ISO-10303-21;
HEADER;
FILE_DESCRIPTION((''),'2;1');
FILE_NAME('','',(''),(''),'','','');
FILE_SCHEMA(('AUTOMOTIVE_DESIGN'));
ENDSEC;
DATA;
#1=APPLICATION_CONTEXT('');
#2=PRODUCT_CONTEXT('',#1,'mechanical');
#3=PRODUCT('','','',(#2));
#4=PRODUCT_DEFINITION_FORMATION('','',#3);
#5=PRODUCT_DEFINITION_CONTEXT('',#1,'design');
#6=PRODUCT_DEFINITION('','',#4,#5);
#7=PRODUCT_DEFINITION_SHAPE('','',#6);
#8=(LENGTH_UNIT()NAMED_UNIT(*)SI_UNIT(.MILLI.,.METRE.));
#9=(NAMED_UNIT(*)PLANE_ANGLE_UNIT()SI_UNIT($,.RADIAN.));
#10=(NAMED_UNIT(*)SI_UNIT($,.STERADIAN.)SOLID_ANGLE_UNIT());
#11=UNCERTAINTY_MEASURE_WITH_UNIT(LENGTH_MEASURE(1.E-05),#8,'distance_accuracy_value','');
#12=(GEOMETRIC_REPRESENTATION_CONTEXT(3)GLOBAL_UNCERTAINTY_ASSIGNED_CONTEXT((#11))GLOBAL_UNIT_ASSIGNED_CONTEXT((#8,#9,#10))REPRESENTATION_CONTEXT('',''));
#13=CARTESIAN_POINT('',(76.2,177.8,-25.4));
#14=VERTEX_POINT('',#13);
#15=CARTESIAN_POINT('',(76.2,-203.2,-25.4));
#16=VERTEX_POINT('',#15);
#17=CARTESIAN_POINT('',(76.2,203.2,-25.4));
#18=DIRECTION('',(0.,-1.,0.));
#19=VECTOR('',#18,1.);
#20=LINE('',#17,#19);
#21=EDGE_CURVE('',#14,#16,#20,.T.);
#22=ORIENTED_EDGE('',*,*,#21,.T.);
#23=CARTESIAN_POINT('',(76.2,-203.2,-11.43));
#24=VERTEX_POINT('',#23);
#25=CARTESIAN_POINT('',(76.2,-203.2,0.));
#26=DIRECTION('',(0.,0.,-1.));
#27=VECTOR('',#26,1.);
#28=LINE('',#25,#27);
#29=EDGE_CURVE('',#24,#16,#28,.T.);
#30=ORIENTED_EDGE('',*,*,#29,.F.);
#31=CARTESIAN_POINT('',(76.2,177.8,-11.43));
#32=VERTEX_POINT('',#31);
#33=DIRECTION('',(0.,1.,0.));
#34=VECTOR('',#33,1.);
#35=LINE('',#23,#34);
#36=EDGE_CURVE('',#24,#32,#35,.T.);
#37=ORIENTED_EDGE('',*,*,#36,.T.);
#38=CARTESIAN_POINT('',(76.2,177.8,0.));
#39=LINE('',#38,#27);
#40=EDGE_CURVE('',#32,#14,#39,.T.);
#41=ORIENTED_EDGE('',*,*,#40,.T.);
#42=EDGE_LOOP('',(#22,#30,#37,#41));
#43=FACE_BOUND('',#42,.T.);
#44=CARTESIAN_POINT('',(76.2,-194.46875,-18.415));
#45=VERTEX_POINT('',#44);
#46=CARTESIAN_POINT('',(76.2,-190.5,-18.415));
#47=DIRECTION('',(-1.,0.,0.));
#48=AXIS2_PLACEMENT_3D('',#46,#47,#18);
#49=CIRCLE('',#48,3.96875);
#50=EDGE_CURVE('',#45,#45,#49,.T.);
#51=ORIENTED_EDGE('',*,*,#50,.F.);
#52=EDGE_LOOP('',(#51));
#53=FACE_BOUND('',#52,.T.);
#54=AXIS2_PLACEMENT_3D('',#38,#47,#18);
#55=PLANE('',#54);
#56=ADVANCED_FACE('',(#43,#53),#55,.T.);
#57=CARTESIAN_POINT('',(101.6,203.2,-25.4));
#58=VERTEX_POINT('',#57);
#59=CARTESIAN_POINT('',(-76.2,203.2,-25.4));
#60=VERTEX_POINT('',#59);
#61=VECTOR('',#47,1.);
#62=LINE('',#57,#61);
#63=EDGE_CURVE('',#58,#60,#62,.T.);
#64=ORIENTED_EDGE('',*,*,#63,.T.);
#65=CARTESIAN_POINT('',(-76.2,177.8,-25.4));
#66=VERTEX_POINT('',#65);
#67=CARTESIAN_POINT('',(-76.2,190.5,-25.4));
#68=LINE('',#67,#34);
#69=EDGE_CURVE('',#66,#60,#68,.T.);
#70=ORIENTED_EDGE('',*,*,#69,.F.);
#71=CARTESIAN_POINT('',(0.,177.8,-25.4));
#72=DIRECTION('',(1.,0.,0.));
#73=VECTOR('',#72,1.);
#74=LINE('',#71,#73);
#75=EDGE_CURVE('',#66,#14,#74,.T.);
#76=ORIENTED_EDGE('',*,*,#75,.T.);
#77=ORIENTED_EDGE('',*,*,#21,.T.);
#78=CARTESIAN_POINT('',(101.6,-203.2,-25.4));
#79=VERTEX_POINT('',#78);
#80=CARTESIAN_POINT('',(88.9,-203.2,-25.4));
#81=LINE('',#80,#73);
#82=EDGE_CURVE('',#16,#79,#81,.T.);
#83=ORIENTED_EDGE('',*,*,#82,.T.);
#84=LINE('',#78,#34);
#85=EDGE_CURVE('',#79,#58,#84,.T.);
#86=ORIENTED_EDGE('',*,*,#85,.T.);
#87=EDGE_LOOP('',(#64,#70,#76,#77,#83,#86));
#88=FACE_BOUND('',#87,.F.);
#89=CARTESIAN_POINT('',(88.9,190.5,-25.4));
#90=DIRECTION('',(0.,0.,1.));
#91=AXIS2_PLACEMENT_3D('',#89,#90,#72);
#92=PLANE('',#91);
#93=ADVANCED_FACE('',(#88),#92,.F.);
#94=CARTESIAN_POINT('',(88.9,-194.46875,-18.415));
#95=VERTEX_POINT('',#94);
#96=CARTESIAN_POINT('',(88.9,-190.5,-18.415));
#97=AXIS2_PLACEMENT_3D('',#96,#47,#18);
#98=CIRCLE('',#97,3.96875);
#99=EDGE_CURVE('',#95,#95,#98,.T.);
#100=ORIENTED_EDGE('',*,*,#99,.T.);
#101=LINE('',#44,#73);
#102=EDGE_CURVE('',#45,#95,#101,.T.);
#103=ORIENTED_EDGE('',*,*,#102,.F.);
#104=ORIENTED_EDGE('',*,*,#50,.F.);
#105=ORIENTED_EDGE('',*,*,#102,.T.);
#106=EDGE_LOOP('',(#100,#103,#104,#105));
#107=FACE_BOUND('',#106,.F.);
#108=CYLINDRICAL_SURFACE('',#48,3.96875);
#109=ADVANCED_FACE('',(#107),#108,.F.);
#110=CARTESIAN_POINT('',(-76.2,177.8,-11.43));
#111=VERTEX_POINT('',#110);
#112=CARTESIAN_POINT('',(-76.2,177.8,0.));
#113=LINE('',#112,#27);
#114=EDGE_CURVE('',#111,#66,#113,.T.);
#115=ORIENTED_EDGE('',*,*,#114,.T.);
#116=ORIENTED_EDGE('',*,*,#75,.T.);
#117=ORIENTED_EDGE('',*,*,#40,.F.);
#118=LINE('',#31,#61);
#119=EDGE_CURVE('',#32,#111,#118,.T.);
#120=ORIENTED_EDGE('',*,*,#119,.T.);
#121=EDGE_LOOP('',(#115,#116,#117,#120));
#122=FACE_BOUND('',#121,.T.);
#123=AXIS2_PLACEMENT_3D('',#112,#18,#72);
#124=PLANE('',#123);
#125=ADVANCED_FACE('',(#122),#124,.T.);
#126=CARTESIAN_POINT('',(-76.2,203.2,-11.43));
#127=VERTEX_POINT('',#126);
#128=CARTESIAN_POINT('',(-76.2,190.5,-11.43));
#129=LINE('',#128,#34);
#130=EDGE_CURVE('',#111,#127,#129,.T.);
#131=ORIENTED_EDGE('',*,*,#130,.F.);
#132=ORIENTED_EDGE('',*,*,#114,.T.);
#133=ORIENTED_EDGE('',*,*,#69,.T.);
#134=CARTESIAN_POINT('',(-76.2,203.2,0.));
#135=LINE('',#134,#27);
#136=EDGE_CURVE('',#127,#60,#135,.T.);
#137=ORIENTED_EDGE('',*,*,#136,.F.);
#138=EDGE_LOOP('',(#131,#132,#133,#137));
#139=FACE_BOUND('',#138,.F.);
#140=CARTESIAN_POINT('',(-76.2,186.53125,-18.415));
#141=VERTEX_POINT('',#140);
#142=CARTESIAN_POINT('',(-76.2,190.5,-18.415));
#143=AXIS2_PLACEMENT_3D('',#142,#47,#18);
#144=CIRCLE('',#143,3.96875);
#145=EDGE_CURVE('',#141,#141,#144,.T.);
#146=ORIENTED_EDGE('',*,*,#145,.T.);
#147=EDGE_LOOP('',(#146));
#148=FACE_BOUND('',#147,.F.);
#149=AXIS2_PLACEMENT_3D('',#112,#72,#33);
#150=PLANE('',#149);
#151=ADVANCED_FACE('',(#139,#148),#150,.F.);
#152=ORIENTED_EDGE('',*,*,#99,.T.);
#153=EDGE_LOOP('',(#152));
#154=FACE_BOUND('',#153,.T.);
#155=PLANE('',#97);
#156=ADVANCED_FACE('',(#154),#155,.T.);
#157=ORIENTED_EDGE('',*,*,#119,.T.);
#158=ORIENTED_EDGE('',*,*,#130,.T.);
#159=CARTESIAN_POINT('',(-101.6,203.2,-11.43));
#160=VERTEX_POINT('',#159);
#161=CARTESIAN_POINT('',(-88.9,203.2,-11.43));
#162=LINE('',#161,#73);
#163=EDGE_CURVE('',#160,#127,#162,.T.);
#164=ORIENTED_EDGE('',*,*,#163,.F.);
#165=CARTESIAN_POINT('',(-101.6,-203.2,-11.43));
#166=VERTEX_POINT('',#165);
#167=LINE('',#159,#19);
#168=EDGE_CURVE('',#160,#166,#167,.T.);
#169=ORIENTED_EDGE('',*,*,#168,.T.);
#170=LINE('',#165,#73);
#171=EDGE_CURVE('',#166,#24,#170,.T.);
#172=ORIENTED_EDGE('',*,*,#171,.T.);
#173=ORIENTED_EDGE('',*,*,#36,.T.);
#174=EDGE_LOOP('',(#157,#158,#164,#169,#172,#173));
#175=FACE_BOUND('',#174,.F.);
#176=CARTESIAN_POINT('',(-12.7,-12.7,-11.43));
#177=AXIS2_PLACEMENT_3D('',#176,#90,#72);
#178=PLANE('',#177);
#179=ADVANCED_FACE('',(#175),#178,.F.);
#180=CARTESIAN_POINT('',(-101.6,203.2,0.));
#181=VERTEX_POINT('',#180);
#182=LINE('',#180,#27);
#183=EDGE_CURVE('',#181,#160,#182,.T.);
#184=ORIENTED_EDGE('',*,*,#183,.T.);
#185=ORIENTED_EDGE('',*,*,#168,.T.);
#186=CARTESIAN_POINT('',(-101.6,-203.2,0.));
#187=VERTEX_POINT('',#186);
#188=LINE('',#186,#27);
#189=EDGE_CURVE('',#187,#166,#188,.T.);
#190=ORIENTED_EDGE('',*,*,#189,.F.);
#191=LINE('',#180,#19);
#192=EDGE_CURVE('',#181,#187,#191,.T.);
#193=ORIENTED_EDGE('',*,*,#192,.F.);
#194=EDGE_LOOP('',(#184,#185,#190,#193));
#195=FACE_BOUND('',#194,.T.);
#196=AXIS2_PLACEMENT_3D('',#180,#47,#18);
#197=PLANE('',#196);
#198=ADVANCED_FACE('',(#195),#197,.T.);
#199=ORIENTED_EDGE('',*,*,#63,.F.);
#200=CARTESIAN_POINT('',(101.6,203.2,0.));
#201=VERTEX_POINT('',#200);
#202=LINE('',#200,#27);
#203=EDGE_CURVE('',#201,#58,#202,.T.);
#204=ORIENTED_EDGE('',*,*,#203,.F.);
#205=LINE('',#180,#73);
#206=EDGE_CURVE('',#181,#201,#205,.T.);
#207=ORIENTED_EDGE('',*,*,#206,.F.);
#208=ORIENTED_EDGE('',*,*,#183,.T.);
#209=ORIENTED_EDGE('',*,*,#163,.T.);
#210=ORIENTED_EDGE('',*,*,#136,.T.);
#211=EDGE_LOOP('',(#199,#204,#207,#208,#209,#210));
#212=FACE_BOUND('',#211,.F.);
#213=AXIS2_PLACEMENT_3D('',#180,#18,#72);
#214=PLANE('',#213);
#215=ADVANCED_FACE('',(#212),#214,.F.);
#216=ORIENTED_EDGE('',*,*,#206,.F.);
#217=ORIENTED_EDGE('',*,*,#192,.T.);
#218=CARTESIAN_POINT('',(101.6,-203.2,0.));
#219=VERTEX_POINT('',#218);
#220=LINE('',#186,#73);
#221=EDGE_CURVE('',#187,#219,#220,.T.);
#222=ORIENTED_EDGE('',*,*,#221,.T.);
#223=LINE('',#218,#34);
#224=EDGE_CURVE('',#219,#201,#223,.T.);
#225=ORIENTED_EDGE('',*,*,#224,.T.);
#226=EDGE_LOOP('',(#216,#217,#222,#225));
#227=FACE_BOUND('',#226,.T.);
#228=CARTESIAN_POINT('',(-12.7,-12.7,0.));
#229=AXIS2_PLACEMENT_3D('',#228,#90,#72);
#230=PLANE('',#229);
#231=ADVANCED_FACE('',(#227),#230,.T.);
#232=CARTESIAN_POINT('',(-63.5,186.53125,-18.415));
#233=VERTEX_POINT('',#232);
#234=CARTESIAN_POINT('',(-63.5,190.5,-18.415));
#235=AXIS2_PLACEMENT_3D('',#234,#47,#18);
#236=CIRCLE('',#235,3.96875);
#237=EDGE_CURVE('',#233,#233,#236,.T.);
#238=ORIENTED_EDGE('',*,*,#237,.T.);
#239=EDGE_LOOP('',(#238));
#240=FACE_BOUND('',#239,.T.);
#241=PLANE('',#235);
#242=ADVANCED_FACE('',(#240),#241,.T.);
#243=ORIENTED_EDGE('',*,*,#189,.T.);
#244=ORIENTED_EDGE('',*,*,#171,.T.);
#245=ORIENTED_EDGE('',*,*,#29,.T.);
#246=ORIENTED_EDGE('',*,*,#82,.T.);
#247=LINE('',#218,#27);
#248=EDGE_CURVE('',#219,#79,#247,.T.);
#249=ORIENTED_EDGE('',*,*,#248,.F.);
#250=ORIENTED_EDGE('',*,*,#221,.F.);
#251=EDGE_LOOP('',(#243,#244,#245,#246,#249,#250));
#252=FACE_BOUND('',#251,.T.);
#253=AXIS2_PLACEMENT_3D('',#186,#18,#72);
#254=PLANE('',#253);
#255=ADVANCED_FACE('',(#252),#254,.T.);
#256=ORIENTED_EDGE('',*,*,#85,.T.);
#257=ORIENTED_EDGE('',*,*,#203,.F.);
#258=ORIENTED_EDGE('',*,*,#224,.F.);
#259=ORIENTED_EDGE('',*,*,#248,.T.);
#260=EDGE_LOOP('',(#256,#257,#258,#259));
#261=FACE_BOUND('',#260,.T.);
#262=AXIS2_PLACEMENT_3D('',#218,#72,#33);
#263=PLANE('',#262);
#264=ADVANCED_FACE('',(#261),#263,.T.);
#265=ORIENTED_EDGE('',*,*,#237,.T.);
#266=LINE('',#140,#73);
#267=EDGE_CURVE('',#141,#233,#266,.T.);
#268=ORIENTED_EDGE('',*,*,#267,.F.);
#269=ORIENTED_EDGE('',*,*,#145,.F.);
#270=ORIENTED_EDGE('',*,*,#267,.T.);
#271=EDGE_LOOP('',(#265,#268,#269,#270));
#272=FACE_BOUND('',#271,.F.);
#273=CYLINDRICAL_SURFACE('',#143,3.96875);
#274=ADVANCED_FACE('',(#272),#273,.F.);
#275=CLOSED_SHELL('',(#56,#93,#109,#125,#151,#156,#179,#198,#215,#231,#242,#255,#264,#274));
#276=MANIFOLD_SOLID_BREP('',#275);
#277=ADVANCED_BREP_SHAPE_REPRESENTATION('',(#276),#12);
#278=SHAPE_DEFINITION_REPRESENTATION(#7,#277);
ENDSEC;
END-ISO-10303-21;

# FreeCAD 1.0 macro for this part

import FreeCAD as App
import Part
import Sketcher
Q = App.Units.Quantity

doc = App.newDocument("Part")
params = doc.addObject("Spreadsheet::Sheet", "Params")
for row, (alias, value) in enumerate([
    ("sketch1_width", "1 in"),
    ("sketch1_width2", "7 in"),
    ("sketch1_height", "15 in"),
    ("pad1_length", "1 in"),
    ("sketch2_width", "6 in"),
    ("sketch2_width2", "1 in"),
    ("sketch2_height", "15 in"),
    ("pad2_length", "0.45 in"),
    ("sketch3_diameter", "0.3125 in"),
    ("pocket1_length", "0.5 in"),
    ("sketch4_diameter", "0.3125 in"),
    ("pocket2_length", "0.5 in"),
], start=1):
    params.set(f"A{row}", alias)
    params.set(f"B{row}", "=" + value)
    params.setAlias(f"B{row}", alias)

body = doc.addObject("PartDesign::Body", "Body")

sketch1 = doc.addObject("Sketcher::SketchObject", "Sketch")
body.addObject(sketch1)
sketch1.AttachmentSupport = (doc.XY_Plane, [""])
sketch1.MapMode = "FlatFace"
sketch1.addGeometry(Part.LineSegment(App.Vector(76, 178, 0), App.Vector(76, -203, 0)), False)
sketch1.addGeometry(Part.LineSegment(App.Vector(76, -203, 0), App.Vector(102, -203, 0)), False)
sketch1.addGeometry(Part.LineSegment(App.Vector(102, -203, 0), App.Vector(102, 203, 0)), False)
sketch1.addGeometry(Part.LineSegment(App.Vector(102, 203, 0), App.Vector(-76, 203, 0)), False)
sketch1.addGeometry(Part.LineSegment(App.Vector(-76, 203, 0), App.Vector(-76, 178, 0)), False)
sketch1.addGeometry(Part.LineSegment(App.Vector(-76, 178, 0), App.Vector(76, 178, 0)), False)
sketch1.addConstraint(Sketcher.Constraint("Coincident", 0, 2, 1, 1))
sketch1.addConstraint(Sketcher.Constraint("Coincident", 1, 2, 2, 1))
sketch1.addConstraint(Sketcher.Constraint("Coincident", 2, 2, 3, 1))
sketch1.addConstraint(Sketcher.Constraint("Coincident", 3, 2, 4, 1))
sketch1.addConstraint(Sketcher.Constraint("Coincident", 4, 2, 5, 1))
sketch1.addConstraint(Sketcher.Constraint("Coincident", 5, 2, 0, 1))
sketch1.addConstraint(Sketcher.Constraint("Vertical", 0))
sketch1.addConstraint(Sketcher.Constraint("Horizontal", 1))
sketch1.addConstraint(Sketcher.Constraint("Vertical", 2))
sketch1.addConstraint(Sketcher.Constraint("Horizontal", 3))
sketch1.addConstraint(Sketcher.Constraint("Vertical", 4))
sketch1.addConstraint(Sketcher.Constraint("Horizontal", 5))
sketch1.addConstraint(Sketcher.Constraint("Symmetric", 0, 2, 3, 2, -1, 1))
sketch1.addConstraint(Sketcher.Constraint("Equal", 1, 4))
sketch1.addConstraint(Sketcher.Constraint("DistanceX", 1, 1, 1, 2, Q("1 in")))
sketch1.addConstraint(Sketcher.Constraint("DistanceX", 3, 2, 3, 1, Q("7 in")))
sketch1.addConstraint(Sketcher.Constraint("DistanceY", 0, 2, 0, 1, Q("15 in")))
sketch1.setExpression("Constraints[14]", "Params.sketch1_width")
sketch1.setExpression("Constraints[15]", "Params.sketch1_width2")
sketch1.setExpression("Constraints[16]", "Params.sketch1_height")
pad1 = doc.addObject("PartDesign::Pad", "Pad")
body.addObject(pad1)
pad1.Profile = sketch1
pad1.setExpression("Length", "Params.pad1_length")
pad1.Reversed = True

sketch2 = doc.addObject("Sketcher::SketchObject", "Sketch001")
body.addObject(sketch2)
sketch2.AttachmentSupport = (doc.XY_Plane, [""])
sketch2.MapMode = "FlatFace"
sketch2.addGeometry(Part.LineSegment(App.Vector(76, -203, 0), App.Vector(76, 178, 0)), False)
sketch2.addGeometry(Part.LineSegment(App.Vector(76, 178, 0), App.Vector(-76, 178, 0)), False)
sketch2.addGeometry(Part.LineSegment(App.Vector(-76, 178, 0), App.Vector(-76, 203, 0)), False)
sketch2.addGeometry(Part.LineSegment(App.Vector(-76, 203, 0), App.Vector(-102, 203, 0)), False)
sketch2.addGeometry(Part.LineSegment(App.Vector(-102, 203, 0), App.Vector(-102, -203, 0)), False)
sketch2.addGeometry(Part.LineSegment(App.Vector(-102, -203, 0), App.Vector(76, -203, 0)), False)
sketch2.addConstraint(Sketcher.Constraint("Coincident", 0, 2, 1, 1))
sketch2.addConstraint(Sketcher.Constraint("Coincident", 1, 2, 2, 1))
sketch2.addConstraint(Sketcher.Constraint("Coincident", 2, 2, 3, 1))
sketch2.addConstraint(Sketcher.Constraint("Coincident", 3, 2, 4, 1))
sketch2.addConstraint(Sketcher.Constraint("Coincident", 4, 2, 5, 1))
sketch2.addConstraint(Sketcher.Constraint("Coincident", 5, 2, 0, 1))
sketch2.addConstraint(Sketcher.Constraint("Vertical", 0))
sketch2.addConstraint(Sketcher.Constraint("Horizontal", 1))
sketch2.addConstraint(Sketcher.Constraint("Vertical", 2))
sketch2.addConstraint(Sketcher.Constraint("Horizontal", 3))
sketch2.addConstraint(Sketcher.Constraint("Vertical", 4))
sketch2.addConstraint(Sketcher.Constraint("Horizontal", 5))
sketch2.addConstraint(Sketcher.Constraint("Symmetric", 2, 2, 5, 2, -1, 1))
sketch2.addConstraint(Sketcher.Constraint("Equal", 3, 2))
sketch2.addConstraint(Sketcher.Constraint("DistanceX", 1, 2, 1, 1, Q("6 in")))
sketch2.addConstraint(Sketcher.Constraint("DistanceX", 3, 2, 3, 1, Q("1 in")))
sketch2.addConstraint(Sketcher.Constraint("DistanceY", 0, 1, 0, 2, Q("15 in")))
sketch2.setExpression("Constraints[14]", "Params.sketch2_width")
sketch2.setExpression("Constraints[15]", "Params.sketch2_width2")
sketch2.setExpression("Constraints[16]", "Params.sketch2_height")
pad2 = doc.addObject("PartDesign::Pad", "Pad001")
body.addObject(pad2)
pad2.Profile = sketch2
pad2.setExpression("Length", "Params.pad2_length")
pad2.Reversed = True

sketch3 = doc.addObject("Sketcher::SketchObject", "Sketch002")
body.addObject(sketch3)
sketch3.AttachmentSupport = (doc.YZ_Plane, [""])
sketch3.MapMode = "FlatFace"
sketch3.AttachmentOffset = App.Placement(App.Vector(0, 0, -3 * 25.4), App.Rotation())
sketch3.addGeometry(Part.Circle(App.Vector(190.5, -18.4, 0), App.Vector(0, 0, 1), 4), False)
sketch3.addConstraint(Sketcher.Constraint("Diameter", 0, Q("0.3125 in")))
sketch3.addConstraint(Sketcher.Constraint("DistanceX", -1, 1, 0, 3, Q("7.5 in")))
sketch3.addConstraint(Sketcher.Constraint("DistanceY", 0, 3, -1, 1, Q("0.725 in")))
sketch3.setExpression("Constraints[0]", "Params.sketch3_diameter")
pocket1 = doc.addObject("PartDesign::Pocket", "Pocket")
body.addObject(pocket1)
pocket1.Profile = sketch3
pocket1.setExpression("Length", "Params.pocket1_length")
pocket1.Reversed = True

sketch4 = doc.addObject("Sketcher::SketchObject", "Sketch003")
body.addObject(sketch4)
sketch4.AttachmentSupport = (doc.YZ_Plane, [""])
sketch4.MapMode = "FlatFace"
sketch4.AttachmentOffset = App.Placement(App.Vector(0, 0, 3 * 25.4), App.Rotation())
sketch4.addGeometry(Part.Circle(App.Vector(-190.5, -18.4, 0), App.Vector(0, 0, 1), 4), False)
sketch4.addConstraint(Sketcher.Constraint("Diameter", 0, Q("0.3125 in")))
sketch4.addConstraint(Sketcher.Constraint("DistanceX", 0, 3, -1, 1, Q("7.5 in")))
sketch4.addConstraint(Sketcher.Constraint("DistanceY", 0, 3, -1, 1, Q("0.725 in")))
sketch4.setExpression("Constraints[0]", "Params.sketch4_diameter")
pocket2 = doc.addObject("PartDesign::Pocket", "Pocket001")
body.addObject(pocket2)
pocket2.Profile = sketch4
pocket2.setExpression("Length", "Params.pocket2_length")
pocket2.Reversed = True

doc.recompute()
